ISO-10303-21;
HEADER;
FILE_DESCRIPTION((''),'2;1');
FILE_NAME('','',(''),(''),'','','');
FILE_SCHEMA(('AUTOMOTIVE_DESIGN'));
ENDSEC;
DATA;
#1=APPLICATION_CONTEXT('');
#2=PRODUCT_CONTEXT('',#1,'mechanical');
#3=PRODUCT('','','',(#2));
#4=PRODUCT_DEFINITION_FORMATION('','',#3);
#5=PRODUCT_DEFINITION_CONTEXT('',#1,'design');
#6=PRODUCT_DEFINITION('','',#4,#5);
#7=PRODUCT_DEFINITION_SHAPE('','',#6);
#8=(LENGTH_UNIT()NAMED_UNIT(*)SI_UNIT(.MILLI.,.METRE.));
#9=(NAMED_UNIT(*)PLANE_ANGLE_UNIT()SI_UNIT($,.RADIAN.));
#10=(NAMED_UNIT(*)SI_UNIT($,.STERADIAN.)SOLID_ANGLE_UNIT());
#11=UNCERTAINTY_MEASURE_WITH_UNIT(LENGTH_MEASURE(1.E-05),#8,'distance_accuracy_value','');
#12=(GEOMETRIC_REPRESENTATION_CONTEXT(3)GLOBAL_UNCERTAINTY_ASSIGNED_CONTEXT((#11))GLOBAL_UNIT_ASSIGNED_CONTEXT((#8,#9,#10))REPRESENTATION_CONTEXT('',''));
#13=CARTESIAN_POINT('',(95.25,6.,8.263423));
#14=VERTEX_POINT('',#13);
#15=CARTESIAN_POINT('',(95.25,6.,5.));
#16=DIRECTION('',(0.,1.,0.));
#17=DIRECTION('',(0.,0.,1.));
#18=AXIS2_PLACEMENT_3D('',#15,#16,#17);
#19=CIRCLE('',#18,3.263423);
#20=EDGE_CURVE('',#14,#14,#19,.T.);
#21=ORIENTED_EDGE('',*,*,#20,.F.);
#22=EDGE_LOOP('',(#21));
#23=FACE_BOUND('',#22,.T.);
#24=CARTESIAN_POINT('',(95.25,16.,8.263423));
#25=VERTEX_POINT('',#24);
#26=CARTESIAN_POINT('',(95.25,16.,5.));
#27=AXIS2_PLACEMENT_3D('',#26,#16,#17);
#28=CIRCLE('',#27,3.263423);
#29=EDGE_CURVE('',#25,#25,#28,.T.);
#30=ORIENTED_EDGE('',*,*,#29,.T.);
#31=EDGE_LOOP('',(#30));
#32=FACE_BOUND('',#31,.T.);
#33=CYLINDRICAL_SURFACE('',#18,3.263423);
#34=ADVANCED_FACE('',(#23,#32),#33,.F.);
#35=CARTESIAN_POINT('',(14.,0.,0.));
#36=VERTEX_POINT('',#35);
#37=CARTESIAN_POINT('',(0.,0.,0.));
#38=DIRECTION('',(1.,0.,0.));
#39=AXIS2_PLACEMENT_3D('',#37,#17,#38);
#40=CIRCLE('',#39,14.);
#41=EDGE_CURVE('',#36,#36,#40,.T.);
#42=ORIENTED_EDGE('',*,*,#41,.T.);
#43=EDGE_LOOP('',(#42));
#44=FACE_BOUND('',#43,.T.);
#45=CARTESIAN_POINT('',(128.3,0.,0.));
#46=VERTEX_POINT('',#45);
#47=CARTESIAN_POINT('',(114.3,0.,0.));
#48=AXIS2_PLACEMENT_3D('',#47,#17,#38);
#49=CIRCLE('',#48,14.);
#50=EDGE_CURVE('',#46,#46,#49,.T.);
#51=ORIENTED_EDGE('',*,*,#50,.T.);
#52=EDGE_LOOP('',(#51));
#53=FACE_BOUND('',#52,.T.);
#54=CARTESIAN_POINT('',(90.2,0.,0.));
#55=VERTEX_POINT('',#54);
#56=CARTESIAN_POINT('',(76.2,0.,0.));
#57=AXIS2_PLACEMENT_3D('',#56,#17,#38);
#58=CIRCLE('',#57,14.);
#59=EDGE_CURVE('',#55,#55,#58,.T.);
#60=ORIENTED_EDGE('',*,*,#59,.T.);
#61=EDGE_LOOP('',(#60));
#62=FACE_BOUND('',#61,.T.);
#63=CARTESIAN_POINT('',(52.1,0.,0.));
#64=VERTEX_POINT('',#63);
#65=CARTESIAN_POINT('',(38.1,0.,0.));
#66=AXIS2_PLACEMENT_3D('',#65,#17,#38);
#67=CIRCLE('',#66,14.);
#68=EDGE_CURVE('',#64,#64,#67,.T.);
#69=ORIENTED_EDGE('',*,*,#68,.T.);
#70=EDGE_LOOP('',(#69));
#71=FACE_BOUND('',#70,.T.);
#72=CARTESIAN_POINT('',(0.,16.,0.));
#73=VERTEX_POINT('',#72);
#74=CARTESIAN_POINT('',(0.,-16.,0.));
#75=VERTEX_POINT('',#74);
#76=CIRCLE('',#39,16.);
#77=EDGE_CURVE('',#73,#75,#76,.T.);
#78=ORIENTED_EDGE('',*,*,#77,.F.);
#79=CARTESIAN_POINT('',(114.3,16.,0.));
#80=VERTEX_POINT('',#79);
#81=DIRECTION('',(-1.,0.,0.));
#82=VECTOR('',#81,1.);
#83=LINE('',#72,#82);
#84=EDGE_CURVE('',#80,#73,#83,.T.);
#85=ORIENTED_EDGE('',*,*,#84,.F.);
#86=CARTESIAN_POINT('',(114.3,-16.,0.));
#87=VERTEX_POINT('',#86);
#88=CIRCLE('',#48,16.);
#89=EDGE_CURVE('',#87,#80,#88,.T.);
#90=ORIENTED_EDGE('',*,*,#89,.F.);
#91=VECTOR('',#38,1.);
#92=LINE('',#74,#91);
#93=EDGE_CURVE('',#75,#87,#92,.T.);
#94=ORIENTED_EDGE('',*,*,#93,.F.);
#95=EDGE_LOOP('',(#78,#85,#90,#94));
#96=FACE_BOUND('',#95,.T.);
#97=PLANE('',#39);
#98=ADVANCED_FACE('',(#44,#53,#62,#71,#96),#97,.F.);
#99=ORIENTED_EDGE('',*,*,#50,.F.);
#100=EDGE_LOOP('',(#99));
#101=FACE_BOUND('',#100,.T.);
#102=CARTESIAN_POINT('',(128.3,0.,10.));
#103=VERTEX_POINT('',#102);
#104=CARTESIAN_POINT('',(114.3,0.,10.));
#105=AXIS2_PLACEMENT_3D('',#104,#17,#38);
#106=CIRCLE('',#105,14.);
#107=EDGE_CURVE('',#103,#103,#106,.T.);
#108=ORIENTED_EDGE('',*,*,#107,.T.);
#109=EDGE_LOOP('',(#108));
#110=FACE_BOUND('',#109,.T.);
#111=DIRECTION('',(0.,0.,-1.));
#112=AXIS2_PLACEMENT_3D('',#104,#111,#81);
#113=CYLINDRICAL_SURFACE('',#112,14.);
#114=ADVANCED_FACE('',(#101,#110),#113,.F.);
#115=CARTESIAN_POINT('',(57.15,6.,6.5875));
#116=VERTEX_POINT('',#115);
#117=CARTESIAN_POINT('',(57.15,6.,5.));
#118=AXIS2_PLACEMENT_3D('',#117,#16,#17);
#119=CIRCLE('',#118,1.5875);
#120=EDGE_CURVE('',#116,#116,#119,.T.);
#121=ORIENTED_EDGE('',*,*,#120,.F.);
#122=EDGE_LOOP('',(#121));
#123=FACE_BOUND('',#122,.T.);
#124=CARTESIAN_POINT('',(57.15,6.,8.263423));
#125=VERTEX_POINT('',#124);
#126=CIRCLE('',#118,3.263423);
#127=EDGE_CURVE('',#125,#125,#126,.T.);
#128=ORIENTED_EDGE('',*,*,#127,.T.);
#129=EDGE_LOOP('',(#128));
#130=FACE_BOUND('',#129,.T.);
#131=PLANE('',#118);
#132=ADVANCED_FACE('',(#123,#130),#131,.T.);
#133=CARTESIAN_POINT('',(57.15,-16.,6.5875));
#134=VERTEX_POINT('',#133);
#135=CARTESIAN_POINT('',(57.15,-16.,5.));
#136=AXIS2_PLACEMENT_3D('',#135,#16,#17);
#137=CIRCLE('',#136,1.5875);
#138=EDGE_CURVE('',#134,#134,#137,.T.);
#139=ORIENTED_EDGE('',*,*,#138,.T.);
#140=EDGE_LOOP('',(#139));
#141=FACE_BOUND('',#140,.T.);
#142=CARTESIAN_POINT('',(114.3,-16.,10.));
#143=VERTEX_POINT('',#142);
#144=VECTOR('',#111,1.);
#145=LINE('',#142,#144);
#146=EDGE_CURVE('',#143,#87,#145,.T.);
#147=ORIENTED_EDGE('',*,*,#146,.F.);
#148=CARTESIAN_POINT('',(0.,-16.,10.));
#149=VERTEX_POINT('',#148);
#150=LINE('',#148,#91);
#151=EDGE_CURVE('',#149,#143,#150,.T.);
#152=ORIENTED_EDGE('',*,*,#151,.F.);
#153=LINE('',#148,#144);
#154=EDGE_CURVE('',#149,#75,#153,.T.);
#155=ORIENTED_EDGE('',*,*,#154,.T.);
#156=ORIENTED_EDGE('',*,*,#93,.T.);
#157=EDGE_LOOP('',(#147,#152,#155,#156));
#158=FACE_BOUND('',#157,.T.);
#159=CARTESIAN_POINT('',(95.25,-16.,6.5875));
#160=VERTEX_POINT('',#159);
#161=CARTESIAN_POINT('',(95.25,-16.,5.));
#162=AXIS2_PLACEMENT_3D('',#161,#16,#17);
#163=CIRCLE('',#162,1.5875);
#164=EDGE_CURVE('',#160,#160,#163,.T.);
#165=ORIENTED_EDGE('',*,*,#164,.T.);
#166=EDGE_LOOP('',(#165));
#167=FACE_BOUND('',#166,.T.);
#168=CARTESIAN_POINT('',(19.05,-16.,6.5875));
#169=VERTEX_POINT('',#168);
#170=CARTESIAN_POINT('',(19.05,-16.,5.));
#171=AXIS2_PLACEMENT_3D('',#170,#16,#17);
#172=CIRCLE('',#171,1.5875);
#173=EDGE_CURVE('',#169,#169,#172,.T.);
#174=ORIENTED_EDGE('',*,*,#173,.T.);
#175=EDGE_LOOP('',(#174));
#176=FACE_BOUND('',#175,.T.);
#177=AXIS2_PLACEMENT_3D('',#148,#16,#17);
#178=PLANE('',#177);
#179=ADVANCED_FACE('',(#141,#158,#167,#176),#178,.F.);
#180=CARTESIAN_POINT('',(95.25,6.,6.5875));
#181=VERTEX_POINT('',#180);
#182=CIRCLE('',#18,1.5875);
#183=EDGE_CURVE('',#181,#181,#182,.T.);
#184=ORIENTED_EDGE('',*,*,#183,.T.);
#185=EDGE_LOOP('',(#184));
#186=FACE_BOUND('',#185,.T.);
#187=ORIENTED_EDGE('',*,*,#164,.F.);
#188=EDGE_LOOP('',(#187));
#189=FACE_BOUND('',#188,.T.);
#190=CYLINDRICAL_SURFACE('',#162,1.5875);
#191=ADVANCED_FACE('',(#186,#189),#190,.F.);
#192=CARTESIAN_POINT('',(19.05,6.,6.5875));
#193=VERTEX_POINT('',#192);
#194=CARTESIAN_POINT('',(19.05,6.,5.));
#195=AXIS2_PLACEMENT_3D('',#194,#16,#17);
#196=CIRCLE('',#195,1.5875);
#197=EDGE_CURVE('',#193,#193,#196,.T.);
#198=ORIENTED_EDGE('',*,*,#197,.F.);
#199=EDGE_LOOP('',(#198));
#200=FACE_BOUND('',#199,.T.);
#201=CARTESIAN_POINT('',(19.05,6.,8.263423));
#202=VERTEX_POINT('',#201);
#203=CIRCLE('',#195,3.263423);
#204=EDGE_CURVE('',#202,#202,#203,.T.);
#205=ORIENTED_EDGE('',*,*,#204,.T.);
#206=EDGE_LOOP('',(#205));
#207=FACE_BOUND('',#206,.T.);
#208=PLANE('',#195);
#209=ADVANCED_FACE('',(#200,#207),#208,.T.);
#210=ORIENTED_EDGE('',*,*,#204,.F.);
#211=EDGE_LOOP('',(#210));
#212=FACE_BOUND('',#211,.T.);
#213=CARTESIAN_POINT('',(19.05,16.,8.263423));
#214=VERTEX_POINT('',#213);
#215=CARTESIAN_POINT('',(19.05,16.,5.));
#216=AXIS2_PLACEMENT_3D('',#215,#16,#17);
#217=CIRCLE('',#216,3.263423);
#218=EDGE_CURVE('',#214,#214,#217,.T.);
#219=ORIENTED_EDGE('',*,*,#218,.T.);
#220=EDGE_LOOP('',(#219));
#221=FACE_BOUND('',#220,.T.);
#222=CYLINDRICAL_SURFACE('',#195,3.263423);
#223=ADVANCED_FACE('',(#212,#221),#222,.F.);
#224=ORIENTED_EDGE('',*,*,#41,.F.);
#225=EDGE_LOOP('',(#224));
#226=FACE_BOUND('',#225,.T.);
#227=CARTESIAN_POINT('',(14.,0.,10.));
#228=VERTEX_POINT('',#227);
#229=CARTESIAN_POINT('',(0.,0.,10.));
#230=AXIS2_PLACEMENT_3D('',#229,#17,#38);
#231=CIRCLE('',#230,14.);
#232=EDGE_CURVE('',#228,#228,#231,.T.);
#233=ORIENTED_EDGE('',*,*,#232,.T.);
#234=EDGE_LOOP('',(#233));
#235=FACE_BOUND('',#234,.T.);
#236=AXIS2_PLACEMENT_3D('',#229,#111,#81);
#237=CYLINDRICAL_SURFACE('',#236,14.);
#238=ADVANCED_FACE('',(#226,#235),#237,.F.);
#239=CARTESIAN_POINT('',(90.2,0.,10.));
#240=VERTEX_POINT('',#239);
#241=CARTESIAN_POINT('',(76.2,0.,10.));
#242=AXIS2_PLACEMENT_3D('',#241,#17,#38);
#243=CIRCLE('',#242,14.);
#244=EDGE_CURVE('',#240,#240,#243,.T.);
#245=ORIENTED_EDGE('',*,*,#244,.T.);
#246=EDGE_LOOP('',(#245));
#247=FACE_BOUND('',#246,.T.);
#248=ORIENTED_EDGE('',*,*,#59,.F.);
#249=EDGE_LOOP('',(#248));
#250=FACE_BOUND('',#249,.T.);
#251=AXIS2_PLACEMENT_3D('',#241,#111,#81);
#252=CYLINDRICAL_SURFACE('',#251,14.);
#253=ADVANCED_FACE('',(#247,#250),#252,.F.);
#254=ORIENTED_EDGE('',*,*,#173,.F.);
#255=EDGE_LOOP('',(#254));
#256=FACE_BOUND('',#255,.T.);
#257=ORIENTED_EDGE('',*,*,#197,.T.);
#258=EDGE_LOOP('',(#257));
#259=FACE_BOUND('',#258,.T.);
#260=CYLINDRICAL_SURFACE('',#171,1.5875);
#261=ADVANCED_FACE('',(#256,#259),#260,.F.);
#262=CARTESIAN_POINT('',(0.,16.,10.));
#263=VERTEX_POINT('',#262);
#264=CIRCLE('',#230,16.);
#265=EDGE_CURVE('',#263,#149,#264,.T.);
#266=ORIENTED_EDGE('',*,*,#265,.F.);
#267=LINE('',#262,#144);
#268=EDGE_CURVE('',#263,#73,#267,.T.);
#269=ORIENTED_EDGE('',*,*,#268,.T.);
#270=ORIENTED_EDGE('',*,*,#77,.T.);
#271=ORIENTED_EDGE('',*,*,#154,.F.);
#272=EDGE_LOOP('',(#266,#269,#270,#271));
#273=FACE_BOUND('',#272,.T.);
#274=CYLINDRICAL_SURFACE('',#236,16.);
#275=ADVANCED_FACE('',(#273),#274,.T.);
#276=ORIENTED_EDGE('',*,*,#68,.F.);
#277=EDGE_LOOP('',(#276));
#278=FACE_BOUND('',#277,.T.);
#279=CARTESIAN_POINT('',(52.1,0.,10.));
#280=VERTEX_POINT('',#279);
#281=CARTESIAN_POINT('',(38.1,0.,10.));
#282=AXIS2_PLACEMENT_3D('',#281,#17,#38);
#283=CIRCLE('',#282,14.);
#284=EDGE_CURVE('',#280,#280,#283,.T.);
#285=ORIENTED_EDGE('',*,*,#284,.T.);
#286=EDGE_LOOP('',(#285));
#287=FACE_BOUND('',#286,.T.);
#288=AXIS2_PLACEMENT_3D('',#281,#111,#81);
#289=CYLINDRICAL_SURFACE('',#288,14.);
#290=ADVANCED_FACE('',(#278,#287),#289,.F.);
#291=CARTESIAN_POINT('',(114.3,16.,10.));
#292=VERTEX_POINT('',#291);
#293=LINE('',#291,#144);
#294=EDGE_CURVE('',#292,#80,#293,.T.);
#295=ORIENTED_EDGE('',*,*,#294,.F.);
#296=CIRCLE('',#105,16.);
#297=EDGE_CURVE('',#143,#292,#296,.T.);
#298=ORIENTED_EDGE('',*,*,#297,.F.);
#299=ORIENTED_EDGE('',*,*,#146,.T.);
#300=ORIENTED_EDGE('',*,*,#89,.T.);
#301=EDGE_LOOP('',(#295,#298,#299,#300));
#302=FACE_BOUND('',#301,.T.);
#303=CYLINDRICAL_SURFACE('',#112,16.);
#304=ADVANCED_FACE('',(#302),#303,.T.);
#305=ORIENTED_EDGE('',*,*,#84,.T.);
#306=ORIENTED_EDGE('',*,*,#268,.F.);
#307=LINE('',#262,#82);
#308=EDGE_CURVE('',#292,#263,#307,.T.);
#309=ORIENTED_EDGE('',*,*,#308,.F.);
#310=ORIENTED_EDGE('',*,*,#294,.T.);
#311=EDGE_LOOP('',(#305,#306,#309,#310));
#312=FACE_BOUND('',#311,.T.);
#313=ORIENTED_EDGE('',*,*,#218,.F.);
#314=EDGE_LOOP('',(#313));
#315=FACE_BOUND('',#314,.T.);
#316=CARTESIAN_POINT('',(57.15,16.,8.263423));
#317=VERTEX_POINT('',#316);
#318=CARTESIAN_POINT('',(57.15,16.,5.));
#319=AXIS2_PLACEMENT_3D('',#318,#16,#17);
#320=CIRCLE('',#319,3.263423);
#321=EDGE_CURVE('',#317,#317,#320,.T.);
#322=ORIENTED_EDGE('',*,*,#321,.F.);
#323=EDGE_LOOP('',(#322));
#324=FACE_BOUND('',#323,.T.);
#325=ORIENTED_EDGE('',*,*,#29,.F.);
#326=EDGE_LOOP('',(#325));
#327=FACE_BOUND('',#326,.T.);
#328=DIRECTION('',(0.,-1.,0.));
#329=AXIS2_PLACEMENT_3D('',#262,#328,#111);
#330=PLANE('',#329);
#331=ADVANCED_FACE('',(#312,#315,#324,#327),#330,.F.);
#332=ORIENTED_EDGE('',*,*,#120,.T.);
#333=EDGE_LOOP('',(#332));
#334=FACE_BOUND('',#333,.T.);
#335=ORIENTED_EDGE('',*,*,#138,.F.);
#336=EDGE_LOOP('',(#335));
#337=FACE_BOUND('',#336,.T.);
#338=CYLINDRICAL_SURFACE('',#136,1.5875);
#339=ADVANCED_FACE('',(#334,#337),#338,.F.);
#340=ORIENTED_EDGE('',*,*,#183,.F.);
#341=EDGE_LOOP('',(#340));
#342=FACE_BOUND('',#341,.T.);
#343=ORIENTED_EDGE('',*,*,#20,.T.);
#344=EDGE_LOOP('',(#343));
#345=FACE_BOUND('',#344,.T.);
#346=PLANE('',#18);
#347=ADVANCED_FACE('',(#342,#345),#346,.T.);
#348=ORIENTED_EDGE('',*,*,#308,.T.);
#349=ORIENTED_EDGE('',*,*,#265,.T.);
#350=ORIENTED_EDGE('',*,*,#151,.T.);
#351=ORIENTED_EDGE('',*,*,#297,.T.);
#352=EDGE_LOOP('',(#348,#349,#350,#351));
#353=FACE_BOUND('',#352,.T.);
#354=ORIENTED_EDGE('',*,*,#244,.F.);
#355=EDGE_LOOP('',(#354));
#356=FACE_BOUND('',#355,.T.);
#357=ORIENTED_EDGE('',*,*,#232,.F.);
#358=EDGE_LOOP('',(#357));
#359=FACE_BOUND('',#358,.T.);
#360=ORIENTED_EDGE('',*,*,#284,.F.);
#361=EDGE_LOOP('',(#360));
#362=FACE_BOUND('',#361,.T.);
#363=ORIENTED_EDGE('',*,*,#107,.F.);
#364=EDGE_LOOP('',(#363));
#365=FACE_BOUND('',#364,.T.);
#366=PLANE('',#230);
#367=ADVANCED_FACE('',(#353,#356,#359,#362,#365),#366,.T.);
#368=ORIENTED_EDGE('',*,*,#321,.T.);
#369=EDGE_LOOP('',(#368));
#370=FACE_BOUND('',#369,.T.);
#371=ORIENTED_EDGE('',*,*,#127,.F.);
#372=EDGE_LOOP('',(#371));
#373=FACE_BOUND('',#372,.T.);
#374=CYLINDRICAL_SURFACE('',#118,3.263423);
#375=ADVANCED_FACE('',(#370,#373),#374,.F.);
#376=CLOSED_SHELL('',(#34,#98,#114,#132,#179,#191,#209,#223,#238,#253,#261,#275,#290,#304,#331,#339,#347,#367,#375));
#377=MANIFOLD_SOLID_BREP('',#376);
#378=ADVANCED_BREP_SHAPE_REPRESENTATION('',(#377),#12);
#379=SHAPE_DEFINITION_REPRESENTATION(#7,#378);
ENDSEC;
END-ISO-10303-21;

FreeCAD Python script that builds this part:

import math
import FreeCAD as App
import Part
import Sketcher

V = App.Vector
Q = App.Units.Quantity

doc = App.newDocument("Part")
params = doc.addObject("Spreadsheet::Sheet", "Params")
for row, (alias, value) in enumerate([
    ("sketch1_diameter", "28 mm"),
    ("sketch1_radius", "16 mm"),
    ("sketch1_width", "114.3 mm"),
    ("pad1_length", "10 mm"),
    ("pocket1_length", "10 mm"),
    ("linearpattern_pitch", "38.1 mm"),
], start=1):
    params.set(f"A{row}", alias)
    params.set(f"B{row}", "=" + value)
    params.setAlias(f"B{row}", alias)

body = doc.addObject("PartDesign::Body", "Body")

# Sketch on XY plane
sketch1 = body.newObject("Sketcher::SketchObject", "Sketch")
sketch1.AttachmentSupport = (doc.getObject("XY_Plane"), [""])
sketch1.MapMode = "FlatFace"
sketch1.addGeometry(Part.LineSegment(V(114.3, 16, 0), V(0, 16, 0)), False)
sketch1.addGeometry(Part.ArcOfCircle(Part.Circle(V(0, 0, 0), V(0, 0, 1), 16), math.radians(90), math.radians(270)), False)
sketch1.addGeometry(Part.LineSegment(V(0, -16, 0), V(114.3, -16, 0)), False)
sketch1.addGeometry(Part.ArcOfCircle(Part.Circle(V(114.3, 0, 0), V(0, 0, 1), 16), math.radians(-90), math.radians(90)), False)
sketch1.addGeometry(Part.Circle(V(114.3, 0, 0), V(0, 0, 1), 14), False)
sketch1.addGeometry(Part.Circle(V(76.2, 0, 0), V(0, 0, 1), 14), False)
sketch1.addGeometry(Part.Circle(V(38.1, 0, 0), V(0, 0, 1), 14), False)
sketch1.addGeometry(Part.Circle(V(0, 0, 0), V(0, 0, 1), 14), False)
sketch1.addConstraint(Sketcher.Constraint("Tangent", 0, 2, 1, 1))
sketch1.addConstraint(Sketcher.Constraint("Tangent", 1, 2, 2, 1))
sketch1.addConstraint(Sketcher.Constraint("Tangent", 2, 2, 3, 1))
sketch1.addConstraint(Sketcher.Constraint("Tangent", 3, 2, 0, 1))
sketch1.addConstraint(Sketcher.Constraint("Horizontal", 0))
sketch1.addConstraint(Sketcher.Constraint("Horizontal", 2))
sketch1.addConstraint(Sketcher.Constraint("Coincident", 1, 3, -1, 1))
sketch1.addConstraint(Sketcher.Constraint("Coincident", 7, 3, -1, 1))
sketch1.addConstraint(Sketcher.Constraint("Coincident", 4, 3, 3, 3))
sketch1.addConstraint(Sketcher.Constraint("Equal", 4, 5))
sketch1.addConstraint(Sketcher.Constraint("Equal", 5, 6))
sketch1.addConstraint(Sketcher.Constraint("Equal", 6, 7))
sketch1.addConstraint(Sketcher.Constraint("PointOnObject", 5, 3, -1))
sketch1.addConstraint(Sketcher.Constraint("PointOnObject", 6, 3, -1))
sketch1.addConstraint(Sketcher.Constraint("Diameter", 4, Q("28 mm")))
sketch1.addConstraint(Sketcher.Constraint("Radius", 1, Q("16 mm")))
sketch1.addConstraint(Sketcher.Constraint("DistanceX", 0, 2, 0, 1, Q("114.3 mm")))
sketch1.addConstraint(Sketcher.Constraint("DistanceX", -1, 1, 5, 3, Q("76.2 mm")))
sketch1.addConstraint(Sketcher.Constraint("DistanceX", -1, 1, 6, 3, Q("38.1 mm")))
sketch1.setExpression("Constraints[14]", "Params.sketch1_diameter")
sketch1.setExpression("Constraints[15]", "Params.sketch1_radius")
sketch1.setExpression("Constraints[16]", "Params.sketch1_width")
pad1 = body.newObject("PartDesign::Pad", "Pad")
pad1.Profile = sketch1
pad1.setExpression("Length", "Params.pad1_length")

# Sketch on XZ plane
sketch2 = body.newObject("Sketcher::SketchObject", "Sketch001")
sketch2.AttachmentSupport = (doc.getObject("XZ_Plane"), [""])
sketch2.MapMode = "FlatFace"
sketch2.AttachmentOffset = App.Placement(V(0, 0, -16), App.Rotation())
sketch2.addGeometry(Part.Circle(V(19.05, 5, 0), V(0, 0, 1), 3.263423), False)
sketch2.addConstraint(Sketcher.Constraint("DistanceY", -1, 1, 0, 3, Q("5 mm")))
sketch2.addConstraint(Sketcher.Constraint("DistanceX", -1, 1, 0, 3, Q("19.05 mm")))
sketch2.addConstraint(Sketcher.Constraint("Diameter", 0, Q("6.526847 mm")))
pocket1 = body.newObject("PartDesign::Pocket", "Pocket")
pocket1.Profile = sketch2
pocket1.setExpression("Length", "Params.pocket1_length")
pocket1.Reversed = True

# Sketch on XZ plane
sketch3 = body.newObject("Sketcher::SketchObject", "Sketch002")
sketch3.AttachmentSupport = (doc.getObject("XZ_Plane"), [""])
sketch3.MapMode = "FlatFace"
sketch3.AttachmentOffset = App.Placement(V(0, 0, -6), App.Rotation())
sketch3.addGeometry(Part.Circle(V(19.05, 5, 0), V(0, 0, 1), 1.5875), False)
sketch3.addConstraint(Sketcher.Constraint("Diameter", 0, Q("3.175 mm")))
sketch3.addConstraint(Sketcher.Constraint("DistanceY", -1, 1, 0, 3, Q("5 mm")))
sketch3.addConstraint(Sketcher.Constraint("DistanceX", -1, 1, 0, 3, Q("19.05 mm")))
pocket2 = body.newObject("PartDesign::Pocket", "Pocket001")
pocket2.Profile = sketch3
pocket2.Type = "ThroughAll"
pocket2.Reversed = True
doc.recompute()

linearpattern = body.newObject("PartDesign::LinearPattern", "LinearPattern")
linearpattern.Originals = [pocket1, pocket2]
linearpattern.Direction = (doc.getObject("X_Axis"), [""])
linearpattern.Mode = "offset"
linearpattern.setExpression("Offset", "Params.linearpattern_pitch")
linearpattern.Occurrences = 3
body.Tip = linearpattern

doc.recompute()
